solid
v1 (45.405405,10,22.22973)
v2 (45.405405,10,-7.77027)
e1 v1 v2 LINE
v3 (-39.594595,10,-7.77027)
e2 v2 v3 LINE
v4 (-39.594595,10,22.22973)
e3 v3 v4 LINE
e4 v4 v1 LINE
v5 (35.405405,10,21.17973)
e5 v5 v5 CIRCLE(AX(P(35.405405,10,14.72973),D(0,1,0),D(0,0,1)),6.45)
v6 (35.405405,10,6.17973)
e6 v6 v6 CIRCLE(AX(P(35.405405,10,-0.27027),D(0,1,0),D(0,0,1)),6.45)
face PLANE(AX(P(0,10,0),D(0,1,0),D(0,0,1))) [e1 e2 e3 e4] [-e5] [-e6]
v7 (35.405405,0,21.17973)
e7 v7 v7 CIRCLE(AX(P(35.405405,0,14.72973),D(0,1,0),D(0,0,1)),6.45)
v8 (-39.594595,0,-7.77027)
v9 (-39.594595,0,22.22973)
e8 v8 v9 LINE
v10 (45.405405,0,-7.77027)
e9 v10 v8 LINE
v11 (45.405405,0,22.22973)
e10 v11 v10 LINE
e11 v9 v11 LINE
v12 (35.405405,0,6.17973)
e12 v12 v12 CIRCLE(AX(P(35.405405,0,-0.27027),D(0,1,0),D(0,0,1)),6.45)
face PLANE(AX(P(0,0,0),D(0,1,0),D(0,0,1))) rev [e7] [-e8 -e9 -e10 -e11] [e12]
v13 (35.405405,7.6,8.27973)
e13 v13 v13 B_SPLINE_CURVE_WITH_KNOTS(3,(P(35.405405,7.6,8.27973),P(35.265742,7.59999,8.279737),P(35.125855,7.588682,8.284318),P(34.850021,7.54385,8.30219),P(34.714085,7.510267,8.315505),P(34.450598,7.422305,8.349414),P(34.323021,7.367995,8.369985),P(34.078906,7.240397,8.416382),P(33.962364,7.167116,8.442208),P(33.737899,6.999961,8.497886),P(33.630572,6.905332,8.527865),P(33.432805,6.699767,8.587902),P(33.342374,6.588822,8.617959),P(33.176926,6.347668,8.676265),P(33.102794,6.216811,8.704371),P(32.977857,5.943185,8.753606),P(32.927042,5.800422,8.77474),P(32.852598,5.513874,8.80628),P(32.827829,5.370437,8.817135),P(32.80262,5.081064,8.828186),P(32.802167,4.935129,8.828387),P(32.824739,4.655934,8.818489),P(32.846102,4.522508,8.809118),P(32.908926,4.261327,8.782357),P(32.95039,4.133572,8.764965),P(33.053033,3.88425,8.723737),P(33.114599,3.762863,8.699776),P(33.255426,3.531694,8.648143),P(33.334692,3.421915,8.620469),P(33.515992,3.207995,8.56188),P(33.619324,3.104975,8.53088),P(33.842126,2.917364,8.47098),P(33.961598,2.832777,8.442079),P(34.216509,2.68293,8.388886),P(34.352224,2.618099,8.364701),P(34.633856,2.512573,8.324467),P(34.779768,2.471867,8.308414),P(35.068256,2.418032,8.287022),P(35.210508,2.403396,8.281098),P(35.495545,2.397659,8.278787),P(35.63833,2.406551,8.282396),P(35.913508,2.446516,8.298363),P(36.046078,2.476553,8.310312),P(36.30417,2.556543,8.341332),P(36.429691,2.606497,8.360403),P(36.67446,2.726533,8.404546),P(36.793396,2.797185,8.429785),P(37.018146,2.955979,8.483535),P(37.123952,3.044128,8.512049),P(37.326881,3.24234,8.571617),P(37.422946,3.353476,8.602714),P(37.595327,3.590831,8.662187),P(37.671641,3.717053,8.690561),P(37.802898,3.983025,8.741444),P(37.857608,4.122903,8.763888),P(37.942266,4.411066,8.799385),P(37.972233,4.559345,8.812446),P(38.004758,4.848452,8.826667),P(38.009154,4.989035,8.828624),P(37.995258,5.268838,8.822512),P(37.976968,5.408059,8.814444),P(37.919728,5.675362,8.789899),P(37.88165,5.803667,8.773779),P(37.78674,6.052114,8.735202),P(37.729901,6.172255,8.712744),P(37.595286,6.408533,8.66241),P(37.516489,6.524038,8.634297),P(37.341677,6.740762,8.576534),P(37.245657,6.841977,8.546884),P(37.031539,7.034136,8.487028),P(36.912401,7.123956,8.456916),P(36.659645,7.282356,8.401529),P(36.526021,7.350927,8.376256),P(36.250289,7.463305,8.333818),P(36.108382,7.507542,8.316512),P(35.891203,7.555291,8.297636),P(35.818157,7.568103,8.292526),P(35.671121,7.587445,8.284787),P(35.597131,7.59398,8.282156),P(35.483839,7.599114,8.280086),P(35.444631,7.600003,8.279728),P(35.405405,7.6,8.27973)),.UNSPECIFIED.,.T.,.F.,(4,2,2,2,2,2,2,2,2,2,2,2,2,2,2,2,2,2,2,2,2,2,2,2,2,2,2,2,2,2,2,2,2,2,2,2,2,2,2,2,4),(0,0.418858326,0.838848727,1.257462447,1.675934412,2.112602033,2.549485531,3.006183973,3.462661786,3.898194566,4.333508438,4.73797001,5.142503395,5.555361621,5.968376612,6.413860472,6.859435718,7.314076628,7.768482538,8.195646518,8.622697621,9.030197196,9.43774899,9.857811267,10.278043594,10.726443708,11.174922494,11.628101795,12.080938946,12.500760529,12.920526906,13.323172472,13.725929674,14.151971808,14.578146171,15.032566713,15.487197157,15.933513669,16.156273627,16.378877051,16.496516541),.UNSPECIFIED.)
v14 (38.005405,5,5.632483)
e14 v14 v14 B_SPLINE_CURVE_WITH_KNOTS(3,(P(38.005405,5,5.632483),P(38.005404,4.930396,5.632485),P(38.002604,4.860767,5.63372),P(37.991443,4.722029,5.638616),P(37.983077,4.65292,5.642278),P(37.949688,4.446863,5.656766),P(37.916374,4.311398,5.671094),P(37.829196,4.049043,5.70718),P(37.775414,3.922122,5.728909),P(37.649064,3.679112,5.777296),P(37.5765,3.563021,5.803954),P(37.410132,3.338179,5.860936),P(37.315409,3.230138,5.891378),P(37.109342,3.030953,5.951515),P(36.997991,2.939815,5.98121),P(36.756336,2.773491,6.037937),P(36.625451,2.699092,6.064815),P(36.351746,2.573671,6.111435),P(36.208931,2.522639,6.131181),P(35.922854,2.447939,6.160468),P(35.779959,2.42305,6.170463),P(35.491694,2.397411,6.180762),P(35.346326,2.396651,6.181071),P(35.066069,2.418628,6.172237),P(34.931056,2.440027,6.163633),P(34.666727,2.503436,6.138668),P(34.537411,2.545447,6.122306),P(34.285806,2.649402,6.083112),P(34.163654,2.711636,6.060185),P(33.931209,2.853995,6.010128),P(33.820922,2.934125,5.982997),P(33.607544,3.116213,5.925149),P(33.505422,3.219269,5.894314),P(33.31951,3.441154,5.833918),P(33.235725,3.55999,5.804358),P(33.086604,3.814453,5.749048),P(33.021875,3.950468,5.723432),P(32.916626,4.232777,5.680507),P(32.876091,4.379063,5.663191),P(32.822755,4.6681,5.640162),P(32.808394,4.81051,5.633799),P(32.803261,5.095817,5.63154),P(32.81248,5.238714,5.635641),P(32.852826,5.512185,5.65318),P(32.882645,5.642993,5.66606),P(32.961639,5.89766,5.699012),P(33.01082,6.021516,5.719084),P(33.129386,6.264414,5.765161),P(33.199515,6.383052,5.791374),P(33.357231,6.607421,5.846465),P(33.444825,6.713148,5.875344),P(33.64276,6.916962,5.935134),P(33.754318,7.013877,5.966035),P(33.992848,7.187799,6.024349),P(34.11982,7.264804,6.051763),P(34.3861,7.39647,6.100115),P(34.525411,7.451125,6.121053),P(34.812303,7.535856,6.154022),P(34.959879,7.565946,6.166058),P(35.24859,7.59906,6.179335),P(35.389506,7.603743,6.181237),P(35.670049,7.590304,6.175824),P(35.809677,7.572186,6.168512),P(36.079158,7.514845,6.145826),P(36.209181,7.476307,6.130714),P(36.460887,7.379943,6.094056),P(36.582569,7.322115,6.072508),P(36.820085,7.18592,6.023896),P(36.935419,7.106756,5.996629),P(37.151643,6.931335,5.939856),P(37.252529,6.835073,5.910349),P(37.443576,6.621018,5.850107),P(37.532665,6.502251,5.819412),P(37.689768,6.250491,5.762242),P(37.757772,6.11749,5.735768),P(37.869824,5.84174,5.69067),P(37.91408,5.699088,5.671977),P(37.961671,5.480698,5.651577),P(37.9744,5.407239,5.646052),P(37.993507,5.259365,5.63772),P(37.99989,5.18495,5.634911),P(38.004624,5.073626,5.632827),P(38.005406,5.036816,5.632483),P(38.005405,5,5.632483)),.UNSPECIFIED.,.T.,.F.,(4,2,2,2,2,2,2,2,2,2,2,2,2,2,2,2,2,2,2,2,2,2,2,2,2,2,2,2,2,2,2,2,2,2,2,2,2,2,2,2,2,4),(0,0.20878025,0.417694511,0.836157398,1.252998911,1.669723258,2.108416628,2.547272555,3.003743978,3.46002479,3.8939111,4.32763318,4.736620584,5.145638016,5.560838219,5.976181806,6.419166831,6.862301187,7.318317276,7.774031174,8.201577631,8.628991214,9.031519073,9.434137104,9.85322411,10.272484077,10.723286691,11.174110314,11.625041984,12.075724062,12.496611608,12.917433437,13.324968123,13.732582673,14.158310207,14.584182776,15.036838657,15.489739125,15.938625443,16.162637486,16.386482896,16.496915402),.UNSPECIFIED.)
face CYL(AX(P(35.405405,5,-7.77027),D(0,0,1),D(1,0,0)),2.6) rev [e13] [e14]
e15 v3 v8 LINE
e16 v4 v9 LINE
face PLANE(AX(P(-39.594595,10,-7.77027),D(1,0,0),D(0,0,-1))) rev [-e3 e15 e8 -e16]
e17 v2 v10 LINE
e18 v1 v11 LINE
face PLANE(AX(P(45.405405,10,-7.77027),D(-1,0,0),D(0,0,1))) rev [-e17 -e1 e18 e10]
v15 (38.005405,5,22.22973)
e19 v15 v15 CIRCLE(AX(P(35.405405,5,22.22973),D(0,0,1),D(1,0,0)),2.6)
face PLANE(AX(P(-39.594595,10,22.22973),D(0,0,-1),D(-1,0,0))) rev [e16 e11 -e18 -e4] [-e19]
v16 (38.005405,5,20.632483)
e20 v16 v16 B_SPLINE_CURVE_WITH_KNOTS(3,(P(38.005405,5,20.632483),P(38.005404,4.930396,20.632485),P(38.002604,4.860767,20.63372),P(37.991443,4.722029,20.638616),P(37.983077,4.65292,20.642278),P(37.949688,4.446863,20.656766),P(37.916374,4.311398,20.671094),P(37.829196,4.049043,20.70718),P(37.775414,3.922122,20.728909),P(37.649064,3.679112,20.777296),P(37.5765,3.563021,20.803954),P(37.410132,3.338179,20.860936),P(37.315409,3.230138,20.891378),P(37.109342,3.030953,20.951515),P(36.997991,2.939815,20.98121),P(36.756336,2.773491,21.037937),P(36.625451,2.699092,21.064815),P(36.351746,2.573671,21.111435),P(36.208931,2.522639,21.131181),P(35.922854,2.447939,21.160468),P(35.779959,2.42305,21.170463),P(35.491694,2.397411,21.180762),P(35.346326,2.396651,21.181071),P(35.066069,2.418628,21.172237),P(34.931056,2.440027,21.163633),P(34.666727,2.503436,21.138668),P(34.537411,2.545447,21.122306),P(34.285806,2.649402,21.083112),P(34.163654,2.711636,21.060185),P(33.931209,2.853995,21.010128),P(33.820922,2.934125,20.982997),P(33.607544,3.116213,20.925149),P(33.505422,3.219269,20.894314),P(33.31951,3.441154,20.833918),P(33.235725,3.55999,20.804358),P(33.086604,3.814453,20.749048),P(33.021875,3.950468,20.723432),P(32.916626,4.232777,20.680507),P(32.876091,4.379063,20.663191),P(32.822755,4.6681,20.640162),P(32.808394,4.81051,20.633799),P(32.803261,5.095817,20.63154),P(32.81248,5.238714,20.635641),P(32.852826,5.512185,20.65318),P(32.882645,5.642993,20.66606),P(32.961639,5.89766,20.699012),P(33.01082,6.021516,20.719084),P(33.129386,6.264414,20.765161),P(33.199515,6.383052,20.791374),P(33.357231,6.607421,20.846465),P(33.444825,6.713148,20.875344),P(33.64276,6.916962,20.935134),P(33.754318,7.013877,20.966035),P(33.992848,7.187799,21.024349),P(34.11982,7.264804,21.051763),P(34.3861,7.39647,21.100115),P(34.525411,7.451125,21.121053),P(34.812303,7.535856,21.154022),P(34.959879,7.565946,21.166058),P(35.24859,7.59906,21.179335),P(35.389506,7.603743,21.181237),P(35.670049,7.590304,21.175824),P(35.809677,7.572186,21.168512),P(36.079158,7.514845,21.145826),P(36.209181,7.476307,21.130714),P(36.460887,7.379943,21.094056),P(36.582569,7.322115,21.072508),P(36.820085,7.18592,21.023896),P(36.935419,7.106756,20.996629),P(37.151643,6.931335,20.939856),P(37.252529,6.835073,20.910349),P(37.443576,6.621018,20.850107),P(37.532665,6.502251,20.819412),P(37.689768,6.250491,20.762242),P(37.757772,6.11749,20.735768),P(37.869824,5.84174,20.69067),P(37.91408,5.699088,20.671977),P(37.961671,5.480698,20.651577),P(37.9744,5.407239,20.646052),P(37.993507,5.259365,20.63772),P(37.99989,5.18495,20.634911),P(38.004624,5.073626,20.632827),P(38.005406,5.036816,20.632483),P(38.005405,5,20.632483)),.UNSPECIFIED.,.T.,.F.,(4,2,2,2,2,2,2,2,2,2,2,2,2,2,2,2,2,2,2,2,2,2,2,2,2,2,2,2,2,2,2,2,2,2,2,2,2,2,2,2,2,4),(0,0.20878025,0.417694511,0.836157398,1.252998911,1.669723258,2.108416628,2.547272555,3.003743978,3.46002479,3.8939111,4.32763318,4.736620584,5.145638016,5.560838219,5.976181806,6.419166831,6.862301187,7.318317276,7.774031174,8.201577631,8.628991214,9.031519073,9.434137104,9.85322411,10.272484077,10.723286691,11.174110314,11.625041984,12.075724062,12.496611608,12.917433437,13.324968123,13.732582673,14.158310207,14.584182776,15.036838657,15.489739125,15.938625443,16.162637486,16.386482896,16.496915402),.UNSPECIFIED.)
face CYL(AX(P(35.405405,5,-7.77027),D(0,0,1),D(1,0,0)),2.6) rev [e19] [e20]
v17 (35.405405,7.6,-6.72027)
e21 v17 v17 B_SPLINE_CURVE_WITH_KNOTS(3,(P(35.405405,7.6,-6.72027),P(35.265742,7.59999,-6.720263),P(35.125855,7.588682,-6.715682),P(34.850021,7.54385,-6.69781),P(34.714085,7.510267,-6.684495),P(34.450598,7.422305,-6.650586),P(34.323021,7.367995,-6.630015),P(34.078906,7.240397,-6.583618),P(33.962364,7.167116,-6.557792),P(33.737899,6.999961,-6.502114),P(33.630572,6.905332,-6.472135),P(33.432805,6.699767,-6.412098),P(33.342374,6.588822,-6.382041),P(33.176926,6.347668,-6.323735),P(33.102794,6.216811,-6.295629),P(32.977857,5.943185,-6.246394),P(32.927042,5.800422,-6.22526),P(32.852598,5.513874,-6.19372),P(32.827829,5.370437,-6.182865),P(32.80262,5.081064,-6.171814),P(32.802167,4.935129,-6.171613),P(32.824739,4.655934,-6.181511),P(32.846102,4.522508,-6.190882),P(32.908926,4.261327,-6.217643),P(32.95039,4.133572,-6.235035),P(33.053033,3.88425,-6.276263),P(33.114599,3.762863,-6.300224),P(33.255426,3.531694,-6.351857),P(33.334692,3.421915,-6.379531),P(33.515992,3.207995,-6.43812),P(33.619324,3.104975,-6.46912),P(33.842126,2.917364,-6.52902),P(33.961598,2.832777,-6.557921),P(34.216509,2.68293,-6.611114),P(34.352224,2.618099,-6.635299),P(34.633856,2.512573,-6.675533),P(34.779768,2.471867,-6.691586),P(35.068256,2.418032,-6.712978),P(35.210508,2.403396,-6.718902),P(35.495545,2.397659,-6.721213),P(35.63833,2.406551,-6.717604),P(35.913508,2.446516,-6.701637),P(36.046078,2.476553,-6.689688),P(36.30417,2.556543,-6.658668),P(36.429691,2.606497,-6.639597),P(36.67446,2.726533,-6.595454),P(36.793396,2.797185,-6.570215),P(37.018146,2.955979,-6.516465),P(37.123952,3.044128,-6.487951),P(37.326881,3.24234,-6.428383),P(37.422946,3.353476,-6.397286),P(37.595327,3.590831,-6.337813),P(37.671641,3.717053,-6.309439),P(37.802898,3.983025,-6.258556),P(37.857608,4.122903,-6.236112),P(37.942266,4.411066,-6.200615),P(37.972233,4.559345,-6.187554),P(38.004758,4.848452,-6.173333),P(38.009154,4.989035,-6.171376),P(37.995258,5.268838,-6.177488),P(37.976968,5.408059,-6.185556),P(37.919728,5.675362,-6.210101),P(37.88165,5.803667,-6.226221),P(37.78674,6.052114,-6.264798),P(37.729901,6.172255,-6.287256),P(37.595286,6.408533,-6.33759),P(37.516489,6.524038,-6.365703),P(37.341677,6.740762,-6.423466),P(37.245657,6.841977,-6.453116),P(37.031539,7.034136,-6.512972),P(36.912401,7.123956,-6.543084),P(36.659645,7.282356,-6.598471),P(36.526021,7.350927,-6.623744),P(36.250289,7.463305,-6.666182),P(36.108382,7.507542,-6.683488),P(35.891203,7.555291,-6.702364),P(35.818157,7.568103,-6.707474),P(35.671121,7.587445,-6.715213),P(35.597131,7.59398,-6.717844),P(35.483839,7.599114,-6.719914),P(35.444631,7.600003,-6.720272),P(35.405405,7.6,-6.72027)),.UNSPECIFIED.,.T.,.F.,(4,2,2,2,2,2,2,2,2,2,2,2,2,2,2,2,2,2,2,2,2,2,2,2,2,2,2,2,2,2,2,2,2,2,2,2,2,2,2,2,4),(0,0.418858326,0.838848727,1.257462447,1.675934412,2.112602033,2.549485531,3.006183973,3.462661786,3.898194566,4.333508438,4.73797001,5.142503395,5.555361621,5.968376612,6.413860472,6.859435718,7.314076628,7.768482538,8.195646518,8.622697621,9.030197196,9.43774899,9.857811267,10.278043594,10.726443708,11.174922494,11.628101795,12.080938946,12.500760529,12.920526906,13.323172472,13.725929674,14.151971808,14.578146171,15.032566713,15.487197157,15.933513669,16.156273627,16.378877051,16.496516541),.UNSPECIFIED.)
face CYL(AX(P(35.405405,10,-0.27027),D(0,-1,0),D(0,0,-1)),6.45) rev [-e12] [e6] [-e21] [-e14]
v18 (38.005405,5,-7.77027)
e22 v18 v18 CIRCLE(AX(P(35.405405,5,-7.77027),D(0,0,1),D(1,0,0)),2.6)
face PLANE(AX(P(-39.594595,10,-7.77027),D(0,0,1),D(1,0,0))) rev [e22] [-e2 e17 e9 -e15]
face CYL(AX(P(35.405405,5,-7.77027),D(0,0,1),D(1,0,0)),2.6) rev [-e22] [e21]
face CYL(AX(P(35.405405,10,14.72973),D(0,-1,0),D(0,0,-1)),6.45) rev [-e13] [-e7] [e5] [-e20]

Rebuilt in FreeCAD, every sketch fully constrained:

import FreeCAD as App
import Part
import Sketcher

V = App.Vector
Q = App.Units.Quantity

doc = App.newDocument("Part")
body = doc.addObject("PartDesign::Body", "Body")

sketch1 = body.newObject("Sketcher::SketchObject", "Sketch")
sketch1.AttachmentSupport = (doc.getObject("XZ_Plane"), [""])
sketch1.MapMode = "FlatFace"
sketch1.addGeometry(Part.LineSegment(V(-40, -8, 0), V(-40, 22, 0)), False)
sketch1.addGeometry(Part.LineSegment(V(-40, 22, 0), V(45, 22, 0)), False)
sketch1.addGeometry(Part.LineSegment(V(45, 22, 0), V(45, -8, 0)), False)
sketch1.addGeometry(Part.LineSegment(V(45, -8, 0), V(-40, -8, 0)), False)
sketch1.addGeometry(Part.Circle(V(35, 15, 0), V(0, 0, 1), 6), False)
sketch1.addGeometry(Part.Circle(V(35, 0, 0), V(0, 0, 1), 6), False)
sketch1.addConstraint(Sketcher.Constraint("Coincident", 0, 2, 1, 1))
sketch1.addConstraint(Sketcher.Constraint("Coincident", 1, 2, 2, 1))
sketch1.addConstraint(Sketcher.Constraint("Coincident", 2, 2, 3, 1))
sketch1.addConstraint(Sketcher.Constraint("Coincident", 3, 2, 0, 1))
sketch1.addConstraint(Sketcher.Constraint("Vertical", 0))
sketch1.addConstraint(Sketcher.Constraint("Horizontal", 1))
sketch1.addConstraint(Sketcher.Constraint("Vertical", 2))
sketch1.addConstraint(Sketcher.Constraint("Horizontal", 3))
sketch1.addConstraint(Sketcher.Constraint("Equal", 4, 5))
sketch1.addConstraint(Sketcher.Constraint("Vertical", 4, 3, 5, 3))
sketch1.addConstraint(Sketcher.Constraint("Diameter", 4, Q("12.9 mm")))
sketch1.addConstraint(Sketcher.Constraint("DistanceX", 1, 1, 1, 2, Q("85 mm")))
sketch1.addConstraint(Sketcher.Constraint("DistanceY", 0, 1, 0, 2, Q("30 mm")))
sketch1.addConstraint(Sketcher.Constraint("DistanceY", 5, 3, 4, 3, Q("15 mm")))
sketch1.addConstraint(Sketcher.Constraint("DistanceX", 0, 2, 4, 3, Q("75 mm")))
sketch1.addConstraint(Sketcher.Constraint("DistanceY", 4, 3, 0, 2, Q("7.5 mm")))
sketch1.addConstraint(Sketcher.Constraint("DistanceY", -1, 1, 4, 3, Q("14.72973 mm")))
sketch1.addConstraint(Sketcher.Constraint("DistanceX", -1, 1, 4, 3, Q("35.405405 mm")))
pad1 = body.newObject("PartDesign::Pad", "Pad")
pad1.Profile = sketch1
pad1.Length = 10
pad1.Reversed = True

sketch2 = body.newObject("Sketcher::SketchObject", "Sketch001")
sketch2.AttachmentSupport = (doc.getObject("XY_Plane"), [""])
sketch2.MapMode = "FlatFace"
sketch2.AttachmentOffset = App.Placement(V(0, 0, 22.22973), App.Rotation())
sketch2.addGeometry(Part.Circle(V(35.4, 5, 0), V(0, 0, 1), 2.6), False)
sketch2.addConstraint(Sketcher.Constraint("Diameter", 0, Q("5.2 mm")))
sketch2.addConstraint(Sketcher.Constraint("DistanceY", -1, 1, 0, 3, Q("5 mm")))
sketch2.addConstraint(Sketcher.Constraint("DistanceX", -1, 1, 0, 3, Q("35.405405 mm")))
pocket1 = body.newObject("PartDesign::Pocket", "Pocket")
pocket1.Profile = sketch2
pocket1.Type = "ThroughAll"

doc.recompute()
